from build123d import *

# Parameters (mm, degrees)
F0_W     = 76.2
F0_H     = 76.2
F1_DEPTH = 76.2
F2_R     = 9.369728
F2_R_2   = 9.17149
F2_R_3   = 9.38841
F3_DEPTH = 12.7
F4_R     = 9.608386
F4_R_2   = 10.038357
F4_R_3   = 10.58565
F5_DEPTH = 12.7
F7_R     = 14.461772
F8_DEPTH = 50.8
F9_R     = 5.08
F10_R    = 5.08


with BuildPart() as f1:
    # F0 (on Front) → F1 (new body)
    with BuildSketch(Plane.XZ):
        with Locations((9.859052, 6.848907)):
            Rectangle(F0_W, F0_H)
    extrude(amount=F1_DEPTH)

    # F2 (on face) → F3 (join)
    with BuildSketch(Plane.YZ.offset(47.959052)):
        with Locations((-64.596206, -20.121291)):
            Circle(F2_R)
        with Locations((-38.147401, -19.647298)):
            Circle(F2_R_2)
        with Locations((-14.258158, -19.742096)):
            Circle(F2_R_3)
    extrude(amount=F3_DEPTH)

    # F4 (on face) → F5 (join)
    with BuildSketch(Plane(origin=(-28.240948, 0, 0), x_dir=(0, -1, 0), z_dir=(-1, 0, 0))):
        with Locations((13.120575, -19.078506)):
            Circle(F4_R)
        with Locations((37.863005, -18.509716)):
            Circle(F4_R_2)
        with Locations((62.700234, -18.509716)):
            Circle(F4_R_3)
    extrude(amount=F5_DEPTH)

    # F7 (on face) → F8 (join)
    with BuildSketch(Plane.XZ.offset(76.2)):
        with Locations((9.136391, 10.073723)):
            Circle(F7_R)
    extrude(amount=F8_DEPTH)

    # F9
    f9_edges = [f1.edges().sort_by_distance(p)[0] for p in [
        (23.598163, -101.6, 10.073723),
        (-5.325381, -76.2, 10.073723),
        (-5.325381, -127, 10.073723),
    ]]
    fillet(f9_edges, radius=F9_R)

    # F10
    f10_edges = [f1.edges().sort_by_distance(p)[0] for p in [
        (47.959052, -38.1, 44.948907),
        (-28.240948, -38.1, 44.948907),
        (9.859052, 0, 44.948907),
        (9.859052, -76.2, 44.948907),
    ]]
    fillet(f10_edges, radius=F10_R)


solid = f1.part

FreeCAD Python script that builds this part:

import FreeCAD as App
import Part
import Sketcher

V = App.Vector
Q = App.Units.Quantity


def edges_at(feature, points):
    """Names of the edges that pass closest to the given points."""
    edges = feature.Shape.Edges
    near = lambda p: min(range(len(edges)), key=lambda i: edges[i].distToShape(Part.Vertex(*p))[0])
    return sorted({f"Edge{near(p) + 1}" for p in points})

doc = App.newDocument("Part")
body = doc.addObject("PartDesign::Body", "Body")

sketch1 = body.newObject("Sketcher::SketchObject", "Sketch")
sketch1.AttachmentSupport = (doc.getObject("XZ_Plane"), [""])
sketch1.MapMode = "FlatFace"
sketch1.addGeometry(Part.LineSegment(V(-28, 45, 0), V(-28, -31, 0)), False)
sketch1.addGeometry(Part.LineSegment(V(-28, -31, 0), V(48, -31, 0)), False)
sketch1.addGeometry(Part.LineSegment(V(48, -31, 0), V(48, 45, 0)), False)
sketch1.addGeometry(Part.LineSegment(V(48, 45, 0), V(-28, 45, 0)), False)
sketch1.addConstraint(Sketcher.Constraint("Coincident", 0, 2, 1, 1))
sketch1.addConstraint(Sketcher.Constraint("Coincident", 1, 2, 2, 1))
sketch1.addConstraint(Sketcher.Constraint("Coincident", 2, 2, 3, 1))
sketch1.addConstraint(Sketcher.Constraint("Coincident", 3, 2, 0, 1))
sketch1.addConstraint(Sketcher.Constraint("Vertical", 0))
sketch1.addConstraint(Sketcher.Constraint("Horizontal", 1))
sketch1.addConstraint(Sketcher.Constraint("Vertical", 2))
sketch1.addConstraint(Sketcher.Constraint("Horizontal", 3))
sketch1.addConstraint(Sketcher.Constraint("Equal", 3, 0))
sketch1.addConstraint(Sketcher.Constraint("DistanceX", 1, 1, 1, 2, Q("3 in")))
sketch1.addConstraint(Sketcher.Constraint("DistanceX", 0, 2, -1, 1, Q("28.240948 mm")))
sketch1.addConstraint(Sketcher.Constraint("DistanceY", 0, 2, -1, 1, Q("31.251093 mm")))
pad1 = body.newObject("PartDesign::Pad", "Pad")
pad1.Profile = sketch1
pad1.Length = Q("3 in")

sketch2 = body.newObject("Sketcher::SketchObject", "Sketch001")
sketch2.AttachmentSupport = (doc.getObject("YZ_Plane"), [""])
sketch2.MapMode = "FlatFace"
sketch2.AttachmentOffset = App.Placement(V(0, 0, 47.959052), App.Rotation())
sketch2.addGeometry(Part.Circle(V(-65, -20, 0), V(0, 0, 1), 9), False)
sketch2.addGeometry(Part.Circle(V(-38, -20, 0), V(0, 0, 1), 9), False)
sketch2.addGeometry(Part.Circle(V(-14, -20, 0), V(0, 0, 1), 9), False)
sketch2.addConstraint(Sketcher.Constraint("Diameter", 1, Q("18.34298 mm")))
sketch2.addConstraint(Sketcher.Constraint("Diameter", 2, Q("18.77682 mm")))
sketch2.addConstraint(Sketcher.Constraint("Diameter", 0, Q("18.739456 mm")))
sketch2.addConstraint(Sketcher.Constraint("DistanceX", 1, 3, -1, 1, Q("38.147401 mm")))
sketch2.addConstraint(Sketcher.Constraint("DistanceY", 2, 3, 1, 3, Q("0.094798 mm")))
sketch2.addConstraint(Sketcher.Constraint("DistanceY", 0, 3, -1, 1, Q("20.121291 mm")))
sketch2.addConstraint(Sketcher.Constraint("DistanceX", 0, 3, -1, 1, Q("64.596206 mm")))
sketch2.addConstraint(Sketcher.Constraint("DistanceY", 1, 3, -1, 1, Q("19.647298 mm")))
sketch2.addConstraint(Sketcher.Constraint("DistanceX", 2, 3, -1, 1, Q("14.258158 mm")))
pad2 = body.newObject("PartDesign::Pad", "Pad001")
pad2.Profile = sketch2
pad2.Length = Q("0.5 in")

sketch3 = body.newObject("Sketcher::SketchObject", "Sketch002")
sketch3.AttachmentSupport = (doc.getObject("YZ_Plane"), [""])
sketch3.MapMode = "FlatFace"
sketch3.AttachmentOffset = App.Placement(V(0, 0, -28.240948), App.Rotation())
sketch3.addGeometry(Part.Circle(V(-13, -19, 0), V(0, 0, 1), 10), False)
sketch3.addGeometry(Part.Circle(V(-38, -19, 0), V(0, 0, 1), 10), False)
sketch3.addGeometry(Part.Circle(V(-63, -19, 0), V(0, 0, 1), 11), False)
sketch3.addConstraint(Sketcher.Constraint("Horizontal", 1, 3, 2, 3))
sketch3.addConstraint(Sketcher.Constraint("Diameter", 2, Q("21.1713 mm")))
sketch3.addConstraint(Sketcher.Constraint("Diameter", 0, Q("19.216772 mm")))
sketch3.addConstraint(Sketcher.Constraint("Diameter", 1, Q("20.076714 mm")))
sketch3.addConstraint(Sketcher.Constraint("DistanceX", 1, 3, 0, 3, Q("24.74243 mm")))
sketch3.addConstraint(Sketcher.Constraint("DistanceY", 0, 3, 1, 3, Q("0.56879 mm")))
sketch3.addConstraint(Sketcher.Constraint("DistanceX", 2, 3, 1, 3, Q("24.837229 mm")))
sketch3.addConstraint(Sketcher.Constraint("DistanceX", 0, 3, -1, 1, Q("13.120575 mm")))
sketch3.addConstraint(Sketcher.Constraint("DistanceY", 0, 3, -1, 1, Q("19.078506 mm")))
pad3 = body.newObject("PartDesign::Pad", "Pad002")
pad3.Profile = sketch3
pad3.Length = Q("0.5 in")
pad3.Reversed = True

sketch4 = body.newObject("Sketcher::SketchObject", "Sketch003")
sketch4.AttachmentSupport = (doc.getObject("XZ_Plane"), [""])
sketch4.MapMode = "FlatFace"
sketch4.AttachmentOffset = App.Placement(V(0, 0, 3 * 25.4), App.Rotation())
sketch4.addGeometry(Part.Circle(V(9, 10, 0), V(0, 0, 1), 14), False)
sketch4.addConstraint(Sketcher.Constraint("Diameter", 0, Q("28.923544 mm")))
sketch4.addConstraint(Sketcher.Constraint("DistanceX", -1, 1, 0, 3, Q("9.136391 mm")))
sketch4.addConstraint(Sketcher.Constraint("DistanceY", -1, 1, 0, 3, Q("10.073723 mm")))
pad4 = body.newObject("PartDesign::Pad", "Pad003")
pad4.Profile = sketch4
pad4.Length = Q("2 in")
doc.recompute()

fillet = body.newObject("PartDesign::Fillet", "Fillet")
fillet.Base = (pad4, edges_at(pad4, [(23.598, -101.6, 10.074), (-5.325, -76.2, 10.074), (-5.325, -127, 10.074)]))
fillet.Radius = Q("0.2 in")
doc.recompute()

fillet2 = body.newObject("PartDesign::Fillet", "Fillet001")
fillet2.Base = (fillet, edges_at(fillet, [
    (47.959, -38.1, 44.949),
    (-28.241, -38.1, 44.949),
    (9.859, 0, 44.949),
    (9.859, -76.2, 44.949),
]))
fillet2.Radius = Q("0.2 in")

doc.recompute()
